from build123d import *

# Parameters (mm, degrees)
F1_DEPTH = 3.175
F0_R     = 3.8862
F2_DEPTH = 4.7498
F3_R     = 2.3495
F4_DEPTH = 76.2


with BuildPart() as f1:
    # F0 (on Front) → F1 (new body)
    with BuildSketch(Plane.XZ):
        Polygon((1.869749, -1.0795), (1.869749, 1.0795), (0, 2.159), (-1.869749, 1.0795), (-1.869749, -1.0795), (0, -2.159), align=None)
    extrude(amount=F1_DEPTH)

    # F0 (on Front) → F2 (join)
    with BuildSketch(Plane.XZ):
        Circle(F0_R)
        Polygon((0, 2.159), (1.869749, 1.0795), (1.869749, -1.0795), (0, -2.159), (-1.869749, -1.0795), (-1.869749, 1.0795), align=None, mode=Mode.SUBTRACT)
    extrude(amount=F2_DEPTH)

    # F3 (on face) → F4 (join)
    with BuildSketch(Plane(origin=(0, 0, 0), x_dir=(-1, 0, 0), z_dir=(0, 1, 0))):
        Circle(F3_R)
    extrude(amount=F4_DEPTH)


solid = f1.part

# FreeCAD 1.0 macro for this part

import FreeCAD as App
import Part
import Sketcher
Q = App.Units.Quantity


def add_polygon(sketch, points):
    """Adds a closed chain of lines whose ends are joined by coincident constraints."""
    first, n = sketch.GeometryCount, len(points)
    for a, b in zip(points, points[1:] + points[:1]):
        sketch.addGeometry(Part.LineSegment(App.Vector(*a, 0), App.Vector(*b, 0)), False)
    for i in range(n):
        sketch.addConstraint(Sketcher.Constraint("Coincident", first + i, 2, first + (i + 1) % n, 1))

doc = App.newDocument("Part")
body = doc.addObject("PartDesign::Body", "Body")

sketch1 = body.newObject("Sketcher::SketchObject", "Sketch")
sketch1.AttachmentSupport = (doc.getObject("XZ_Plane"), [""])
sketch1.MapMode = "FlatFace"
add_polygon(sketch1, [(1.9, -1.1), (1.9, 1.1), (0, 2.2), (-1.9, 1.1), (-1.9, -1.1), (0, -2.2)])
sketch1.addConstraint([
    Sketcher.Constraint("Vertical", 0),
    Sketcher.Constraint("Vertical", 3),
    Sketcher.Constraint("Symmetric", 0, 2, 3, 2, -1, 1),
    Sketcher.Constraint("Symmetric", 1, 2, 4, 2, -1, 1),
    Sketcher.Constraint("PointOnObject", 1, 2, -2),
    Sketcher.Constraint("Parallel", 2, 5),
    Sketcher.Constraint("Horizontal", 0, 2, 2, 2),
    Sketcher.Constraint("Angle", 1, Q("150.000002 deg")),
    Sketcher.Constraint("DistanceY", 0, 1, 0, 2, Q("0.085 in")),
    Sketcher.Constraint("DistanceY", 4, 2, 1, 2, Q("0.17 in")),
])
pad1 = body.newObject("PartDesign::Pad", "Pad")
pad1.Profile = sketch1
pad1.Length = Q("0.125 in")

sketch2 = body.newObject("Sketcher::SketchObject", "Sketch001")
sketch2.AttachmentSupport = (doc.getObject("XZ_Plane"), [""])
sketch2.MapMode = "FlatFace"
sketch2.addGeometry(Part.Circle(App.Vector(0, 0, 0), App.Vector(0, 0, 1), 3.9), False)
add_polygon(sketch2, [(-1.9, 1.1), (0, 2.2), (1.9, 1.1), (1.9, -1.1), (0, -2.2), (-1.9, -1.1)])
sketch2.addConstraint([
    Sketcher.Constraint("Vertical", 3),
    Sketcher.Constraint("Vertical", 6),
    Sketcher.Constraint("Coincident", 0, 3, -1, 1),
    Sketcher.Constraint("Symmetric", 1, 2, 4, 2, -1, 1),
    Sketcher.Constraint("Symmetric", 2, 2, 5, 2, -1, 1),
    Sketcher.Constraint("PointOnObject", 1, 2, -2),
    Sketcher.Constraint("Parallel", 1, 4),
    Sketcher.Constraint("Horizontal", 3, 2, 5, 2),
    Sketcher.Constraint("Diameter", 0, Q("0.306 in")),
    Sketcher.Constraint("Angle", 1, Q("29.999998 deg")),
    Sketcher.Constraint("DistanceY", 3, 2, 3, 1, Q("0.085 in")),
    Sketcher.Constraint("DistanceY", 4, 2, 1, 2, Q("0.17 in")),
])
pad2 = body.newObject("PartDesign::Pad", "Pad001")
pad2.Profile = sketch2
pad2.Length = Q("0.187 in")

sketch3 = body.newObject("Sketcher::SketchObject", "Sketch002")
sketch3.AttachmentSupport = (doc.getObject("XZ_Plane"), [""])
sketch3.MapMode = "FlatFace"
sketch3.addGeometry(Part.Circle(App.Vector(0, 0, 0), App.Vector(0, 0, 1), 2.3), False)
sketch3.addConstraint([
    Sketcher.Constraint("Coincident", 0, 3, -1, 1),
    Sketcher.Constraint("Diameter", 0, Q("0.185 in")),
])
pad3 = body.newObject("PartDesign::Pad", "Pad002")
pad3.Profile = sketch3
pad3.Length = Q("3 in")
pad3.Reversed = True

doc.recompute()
